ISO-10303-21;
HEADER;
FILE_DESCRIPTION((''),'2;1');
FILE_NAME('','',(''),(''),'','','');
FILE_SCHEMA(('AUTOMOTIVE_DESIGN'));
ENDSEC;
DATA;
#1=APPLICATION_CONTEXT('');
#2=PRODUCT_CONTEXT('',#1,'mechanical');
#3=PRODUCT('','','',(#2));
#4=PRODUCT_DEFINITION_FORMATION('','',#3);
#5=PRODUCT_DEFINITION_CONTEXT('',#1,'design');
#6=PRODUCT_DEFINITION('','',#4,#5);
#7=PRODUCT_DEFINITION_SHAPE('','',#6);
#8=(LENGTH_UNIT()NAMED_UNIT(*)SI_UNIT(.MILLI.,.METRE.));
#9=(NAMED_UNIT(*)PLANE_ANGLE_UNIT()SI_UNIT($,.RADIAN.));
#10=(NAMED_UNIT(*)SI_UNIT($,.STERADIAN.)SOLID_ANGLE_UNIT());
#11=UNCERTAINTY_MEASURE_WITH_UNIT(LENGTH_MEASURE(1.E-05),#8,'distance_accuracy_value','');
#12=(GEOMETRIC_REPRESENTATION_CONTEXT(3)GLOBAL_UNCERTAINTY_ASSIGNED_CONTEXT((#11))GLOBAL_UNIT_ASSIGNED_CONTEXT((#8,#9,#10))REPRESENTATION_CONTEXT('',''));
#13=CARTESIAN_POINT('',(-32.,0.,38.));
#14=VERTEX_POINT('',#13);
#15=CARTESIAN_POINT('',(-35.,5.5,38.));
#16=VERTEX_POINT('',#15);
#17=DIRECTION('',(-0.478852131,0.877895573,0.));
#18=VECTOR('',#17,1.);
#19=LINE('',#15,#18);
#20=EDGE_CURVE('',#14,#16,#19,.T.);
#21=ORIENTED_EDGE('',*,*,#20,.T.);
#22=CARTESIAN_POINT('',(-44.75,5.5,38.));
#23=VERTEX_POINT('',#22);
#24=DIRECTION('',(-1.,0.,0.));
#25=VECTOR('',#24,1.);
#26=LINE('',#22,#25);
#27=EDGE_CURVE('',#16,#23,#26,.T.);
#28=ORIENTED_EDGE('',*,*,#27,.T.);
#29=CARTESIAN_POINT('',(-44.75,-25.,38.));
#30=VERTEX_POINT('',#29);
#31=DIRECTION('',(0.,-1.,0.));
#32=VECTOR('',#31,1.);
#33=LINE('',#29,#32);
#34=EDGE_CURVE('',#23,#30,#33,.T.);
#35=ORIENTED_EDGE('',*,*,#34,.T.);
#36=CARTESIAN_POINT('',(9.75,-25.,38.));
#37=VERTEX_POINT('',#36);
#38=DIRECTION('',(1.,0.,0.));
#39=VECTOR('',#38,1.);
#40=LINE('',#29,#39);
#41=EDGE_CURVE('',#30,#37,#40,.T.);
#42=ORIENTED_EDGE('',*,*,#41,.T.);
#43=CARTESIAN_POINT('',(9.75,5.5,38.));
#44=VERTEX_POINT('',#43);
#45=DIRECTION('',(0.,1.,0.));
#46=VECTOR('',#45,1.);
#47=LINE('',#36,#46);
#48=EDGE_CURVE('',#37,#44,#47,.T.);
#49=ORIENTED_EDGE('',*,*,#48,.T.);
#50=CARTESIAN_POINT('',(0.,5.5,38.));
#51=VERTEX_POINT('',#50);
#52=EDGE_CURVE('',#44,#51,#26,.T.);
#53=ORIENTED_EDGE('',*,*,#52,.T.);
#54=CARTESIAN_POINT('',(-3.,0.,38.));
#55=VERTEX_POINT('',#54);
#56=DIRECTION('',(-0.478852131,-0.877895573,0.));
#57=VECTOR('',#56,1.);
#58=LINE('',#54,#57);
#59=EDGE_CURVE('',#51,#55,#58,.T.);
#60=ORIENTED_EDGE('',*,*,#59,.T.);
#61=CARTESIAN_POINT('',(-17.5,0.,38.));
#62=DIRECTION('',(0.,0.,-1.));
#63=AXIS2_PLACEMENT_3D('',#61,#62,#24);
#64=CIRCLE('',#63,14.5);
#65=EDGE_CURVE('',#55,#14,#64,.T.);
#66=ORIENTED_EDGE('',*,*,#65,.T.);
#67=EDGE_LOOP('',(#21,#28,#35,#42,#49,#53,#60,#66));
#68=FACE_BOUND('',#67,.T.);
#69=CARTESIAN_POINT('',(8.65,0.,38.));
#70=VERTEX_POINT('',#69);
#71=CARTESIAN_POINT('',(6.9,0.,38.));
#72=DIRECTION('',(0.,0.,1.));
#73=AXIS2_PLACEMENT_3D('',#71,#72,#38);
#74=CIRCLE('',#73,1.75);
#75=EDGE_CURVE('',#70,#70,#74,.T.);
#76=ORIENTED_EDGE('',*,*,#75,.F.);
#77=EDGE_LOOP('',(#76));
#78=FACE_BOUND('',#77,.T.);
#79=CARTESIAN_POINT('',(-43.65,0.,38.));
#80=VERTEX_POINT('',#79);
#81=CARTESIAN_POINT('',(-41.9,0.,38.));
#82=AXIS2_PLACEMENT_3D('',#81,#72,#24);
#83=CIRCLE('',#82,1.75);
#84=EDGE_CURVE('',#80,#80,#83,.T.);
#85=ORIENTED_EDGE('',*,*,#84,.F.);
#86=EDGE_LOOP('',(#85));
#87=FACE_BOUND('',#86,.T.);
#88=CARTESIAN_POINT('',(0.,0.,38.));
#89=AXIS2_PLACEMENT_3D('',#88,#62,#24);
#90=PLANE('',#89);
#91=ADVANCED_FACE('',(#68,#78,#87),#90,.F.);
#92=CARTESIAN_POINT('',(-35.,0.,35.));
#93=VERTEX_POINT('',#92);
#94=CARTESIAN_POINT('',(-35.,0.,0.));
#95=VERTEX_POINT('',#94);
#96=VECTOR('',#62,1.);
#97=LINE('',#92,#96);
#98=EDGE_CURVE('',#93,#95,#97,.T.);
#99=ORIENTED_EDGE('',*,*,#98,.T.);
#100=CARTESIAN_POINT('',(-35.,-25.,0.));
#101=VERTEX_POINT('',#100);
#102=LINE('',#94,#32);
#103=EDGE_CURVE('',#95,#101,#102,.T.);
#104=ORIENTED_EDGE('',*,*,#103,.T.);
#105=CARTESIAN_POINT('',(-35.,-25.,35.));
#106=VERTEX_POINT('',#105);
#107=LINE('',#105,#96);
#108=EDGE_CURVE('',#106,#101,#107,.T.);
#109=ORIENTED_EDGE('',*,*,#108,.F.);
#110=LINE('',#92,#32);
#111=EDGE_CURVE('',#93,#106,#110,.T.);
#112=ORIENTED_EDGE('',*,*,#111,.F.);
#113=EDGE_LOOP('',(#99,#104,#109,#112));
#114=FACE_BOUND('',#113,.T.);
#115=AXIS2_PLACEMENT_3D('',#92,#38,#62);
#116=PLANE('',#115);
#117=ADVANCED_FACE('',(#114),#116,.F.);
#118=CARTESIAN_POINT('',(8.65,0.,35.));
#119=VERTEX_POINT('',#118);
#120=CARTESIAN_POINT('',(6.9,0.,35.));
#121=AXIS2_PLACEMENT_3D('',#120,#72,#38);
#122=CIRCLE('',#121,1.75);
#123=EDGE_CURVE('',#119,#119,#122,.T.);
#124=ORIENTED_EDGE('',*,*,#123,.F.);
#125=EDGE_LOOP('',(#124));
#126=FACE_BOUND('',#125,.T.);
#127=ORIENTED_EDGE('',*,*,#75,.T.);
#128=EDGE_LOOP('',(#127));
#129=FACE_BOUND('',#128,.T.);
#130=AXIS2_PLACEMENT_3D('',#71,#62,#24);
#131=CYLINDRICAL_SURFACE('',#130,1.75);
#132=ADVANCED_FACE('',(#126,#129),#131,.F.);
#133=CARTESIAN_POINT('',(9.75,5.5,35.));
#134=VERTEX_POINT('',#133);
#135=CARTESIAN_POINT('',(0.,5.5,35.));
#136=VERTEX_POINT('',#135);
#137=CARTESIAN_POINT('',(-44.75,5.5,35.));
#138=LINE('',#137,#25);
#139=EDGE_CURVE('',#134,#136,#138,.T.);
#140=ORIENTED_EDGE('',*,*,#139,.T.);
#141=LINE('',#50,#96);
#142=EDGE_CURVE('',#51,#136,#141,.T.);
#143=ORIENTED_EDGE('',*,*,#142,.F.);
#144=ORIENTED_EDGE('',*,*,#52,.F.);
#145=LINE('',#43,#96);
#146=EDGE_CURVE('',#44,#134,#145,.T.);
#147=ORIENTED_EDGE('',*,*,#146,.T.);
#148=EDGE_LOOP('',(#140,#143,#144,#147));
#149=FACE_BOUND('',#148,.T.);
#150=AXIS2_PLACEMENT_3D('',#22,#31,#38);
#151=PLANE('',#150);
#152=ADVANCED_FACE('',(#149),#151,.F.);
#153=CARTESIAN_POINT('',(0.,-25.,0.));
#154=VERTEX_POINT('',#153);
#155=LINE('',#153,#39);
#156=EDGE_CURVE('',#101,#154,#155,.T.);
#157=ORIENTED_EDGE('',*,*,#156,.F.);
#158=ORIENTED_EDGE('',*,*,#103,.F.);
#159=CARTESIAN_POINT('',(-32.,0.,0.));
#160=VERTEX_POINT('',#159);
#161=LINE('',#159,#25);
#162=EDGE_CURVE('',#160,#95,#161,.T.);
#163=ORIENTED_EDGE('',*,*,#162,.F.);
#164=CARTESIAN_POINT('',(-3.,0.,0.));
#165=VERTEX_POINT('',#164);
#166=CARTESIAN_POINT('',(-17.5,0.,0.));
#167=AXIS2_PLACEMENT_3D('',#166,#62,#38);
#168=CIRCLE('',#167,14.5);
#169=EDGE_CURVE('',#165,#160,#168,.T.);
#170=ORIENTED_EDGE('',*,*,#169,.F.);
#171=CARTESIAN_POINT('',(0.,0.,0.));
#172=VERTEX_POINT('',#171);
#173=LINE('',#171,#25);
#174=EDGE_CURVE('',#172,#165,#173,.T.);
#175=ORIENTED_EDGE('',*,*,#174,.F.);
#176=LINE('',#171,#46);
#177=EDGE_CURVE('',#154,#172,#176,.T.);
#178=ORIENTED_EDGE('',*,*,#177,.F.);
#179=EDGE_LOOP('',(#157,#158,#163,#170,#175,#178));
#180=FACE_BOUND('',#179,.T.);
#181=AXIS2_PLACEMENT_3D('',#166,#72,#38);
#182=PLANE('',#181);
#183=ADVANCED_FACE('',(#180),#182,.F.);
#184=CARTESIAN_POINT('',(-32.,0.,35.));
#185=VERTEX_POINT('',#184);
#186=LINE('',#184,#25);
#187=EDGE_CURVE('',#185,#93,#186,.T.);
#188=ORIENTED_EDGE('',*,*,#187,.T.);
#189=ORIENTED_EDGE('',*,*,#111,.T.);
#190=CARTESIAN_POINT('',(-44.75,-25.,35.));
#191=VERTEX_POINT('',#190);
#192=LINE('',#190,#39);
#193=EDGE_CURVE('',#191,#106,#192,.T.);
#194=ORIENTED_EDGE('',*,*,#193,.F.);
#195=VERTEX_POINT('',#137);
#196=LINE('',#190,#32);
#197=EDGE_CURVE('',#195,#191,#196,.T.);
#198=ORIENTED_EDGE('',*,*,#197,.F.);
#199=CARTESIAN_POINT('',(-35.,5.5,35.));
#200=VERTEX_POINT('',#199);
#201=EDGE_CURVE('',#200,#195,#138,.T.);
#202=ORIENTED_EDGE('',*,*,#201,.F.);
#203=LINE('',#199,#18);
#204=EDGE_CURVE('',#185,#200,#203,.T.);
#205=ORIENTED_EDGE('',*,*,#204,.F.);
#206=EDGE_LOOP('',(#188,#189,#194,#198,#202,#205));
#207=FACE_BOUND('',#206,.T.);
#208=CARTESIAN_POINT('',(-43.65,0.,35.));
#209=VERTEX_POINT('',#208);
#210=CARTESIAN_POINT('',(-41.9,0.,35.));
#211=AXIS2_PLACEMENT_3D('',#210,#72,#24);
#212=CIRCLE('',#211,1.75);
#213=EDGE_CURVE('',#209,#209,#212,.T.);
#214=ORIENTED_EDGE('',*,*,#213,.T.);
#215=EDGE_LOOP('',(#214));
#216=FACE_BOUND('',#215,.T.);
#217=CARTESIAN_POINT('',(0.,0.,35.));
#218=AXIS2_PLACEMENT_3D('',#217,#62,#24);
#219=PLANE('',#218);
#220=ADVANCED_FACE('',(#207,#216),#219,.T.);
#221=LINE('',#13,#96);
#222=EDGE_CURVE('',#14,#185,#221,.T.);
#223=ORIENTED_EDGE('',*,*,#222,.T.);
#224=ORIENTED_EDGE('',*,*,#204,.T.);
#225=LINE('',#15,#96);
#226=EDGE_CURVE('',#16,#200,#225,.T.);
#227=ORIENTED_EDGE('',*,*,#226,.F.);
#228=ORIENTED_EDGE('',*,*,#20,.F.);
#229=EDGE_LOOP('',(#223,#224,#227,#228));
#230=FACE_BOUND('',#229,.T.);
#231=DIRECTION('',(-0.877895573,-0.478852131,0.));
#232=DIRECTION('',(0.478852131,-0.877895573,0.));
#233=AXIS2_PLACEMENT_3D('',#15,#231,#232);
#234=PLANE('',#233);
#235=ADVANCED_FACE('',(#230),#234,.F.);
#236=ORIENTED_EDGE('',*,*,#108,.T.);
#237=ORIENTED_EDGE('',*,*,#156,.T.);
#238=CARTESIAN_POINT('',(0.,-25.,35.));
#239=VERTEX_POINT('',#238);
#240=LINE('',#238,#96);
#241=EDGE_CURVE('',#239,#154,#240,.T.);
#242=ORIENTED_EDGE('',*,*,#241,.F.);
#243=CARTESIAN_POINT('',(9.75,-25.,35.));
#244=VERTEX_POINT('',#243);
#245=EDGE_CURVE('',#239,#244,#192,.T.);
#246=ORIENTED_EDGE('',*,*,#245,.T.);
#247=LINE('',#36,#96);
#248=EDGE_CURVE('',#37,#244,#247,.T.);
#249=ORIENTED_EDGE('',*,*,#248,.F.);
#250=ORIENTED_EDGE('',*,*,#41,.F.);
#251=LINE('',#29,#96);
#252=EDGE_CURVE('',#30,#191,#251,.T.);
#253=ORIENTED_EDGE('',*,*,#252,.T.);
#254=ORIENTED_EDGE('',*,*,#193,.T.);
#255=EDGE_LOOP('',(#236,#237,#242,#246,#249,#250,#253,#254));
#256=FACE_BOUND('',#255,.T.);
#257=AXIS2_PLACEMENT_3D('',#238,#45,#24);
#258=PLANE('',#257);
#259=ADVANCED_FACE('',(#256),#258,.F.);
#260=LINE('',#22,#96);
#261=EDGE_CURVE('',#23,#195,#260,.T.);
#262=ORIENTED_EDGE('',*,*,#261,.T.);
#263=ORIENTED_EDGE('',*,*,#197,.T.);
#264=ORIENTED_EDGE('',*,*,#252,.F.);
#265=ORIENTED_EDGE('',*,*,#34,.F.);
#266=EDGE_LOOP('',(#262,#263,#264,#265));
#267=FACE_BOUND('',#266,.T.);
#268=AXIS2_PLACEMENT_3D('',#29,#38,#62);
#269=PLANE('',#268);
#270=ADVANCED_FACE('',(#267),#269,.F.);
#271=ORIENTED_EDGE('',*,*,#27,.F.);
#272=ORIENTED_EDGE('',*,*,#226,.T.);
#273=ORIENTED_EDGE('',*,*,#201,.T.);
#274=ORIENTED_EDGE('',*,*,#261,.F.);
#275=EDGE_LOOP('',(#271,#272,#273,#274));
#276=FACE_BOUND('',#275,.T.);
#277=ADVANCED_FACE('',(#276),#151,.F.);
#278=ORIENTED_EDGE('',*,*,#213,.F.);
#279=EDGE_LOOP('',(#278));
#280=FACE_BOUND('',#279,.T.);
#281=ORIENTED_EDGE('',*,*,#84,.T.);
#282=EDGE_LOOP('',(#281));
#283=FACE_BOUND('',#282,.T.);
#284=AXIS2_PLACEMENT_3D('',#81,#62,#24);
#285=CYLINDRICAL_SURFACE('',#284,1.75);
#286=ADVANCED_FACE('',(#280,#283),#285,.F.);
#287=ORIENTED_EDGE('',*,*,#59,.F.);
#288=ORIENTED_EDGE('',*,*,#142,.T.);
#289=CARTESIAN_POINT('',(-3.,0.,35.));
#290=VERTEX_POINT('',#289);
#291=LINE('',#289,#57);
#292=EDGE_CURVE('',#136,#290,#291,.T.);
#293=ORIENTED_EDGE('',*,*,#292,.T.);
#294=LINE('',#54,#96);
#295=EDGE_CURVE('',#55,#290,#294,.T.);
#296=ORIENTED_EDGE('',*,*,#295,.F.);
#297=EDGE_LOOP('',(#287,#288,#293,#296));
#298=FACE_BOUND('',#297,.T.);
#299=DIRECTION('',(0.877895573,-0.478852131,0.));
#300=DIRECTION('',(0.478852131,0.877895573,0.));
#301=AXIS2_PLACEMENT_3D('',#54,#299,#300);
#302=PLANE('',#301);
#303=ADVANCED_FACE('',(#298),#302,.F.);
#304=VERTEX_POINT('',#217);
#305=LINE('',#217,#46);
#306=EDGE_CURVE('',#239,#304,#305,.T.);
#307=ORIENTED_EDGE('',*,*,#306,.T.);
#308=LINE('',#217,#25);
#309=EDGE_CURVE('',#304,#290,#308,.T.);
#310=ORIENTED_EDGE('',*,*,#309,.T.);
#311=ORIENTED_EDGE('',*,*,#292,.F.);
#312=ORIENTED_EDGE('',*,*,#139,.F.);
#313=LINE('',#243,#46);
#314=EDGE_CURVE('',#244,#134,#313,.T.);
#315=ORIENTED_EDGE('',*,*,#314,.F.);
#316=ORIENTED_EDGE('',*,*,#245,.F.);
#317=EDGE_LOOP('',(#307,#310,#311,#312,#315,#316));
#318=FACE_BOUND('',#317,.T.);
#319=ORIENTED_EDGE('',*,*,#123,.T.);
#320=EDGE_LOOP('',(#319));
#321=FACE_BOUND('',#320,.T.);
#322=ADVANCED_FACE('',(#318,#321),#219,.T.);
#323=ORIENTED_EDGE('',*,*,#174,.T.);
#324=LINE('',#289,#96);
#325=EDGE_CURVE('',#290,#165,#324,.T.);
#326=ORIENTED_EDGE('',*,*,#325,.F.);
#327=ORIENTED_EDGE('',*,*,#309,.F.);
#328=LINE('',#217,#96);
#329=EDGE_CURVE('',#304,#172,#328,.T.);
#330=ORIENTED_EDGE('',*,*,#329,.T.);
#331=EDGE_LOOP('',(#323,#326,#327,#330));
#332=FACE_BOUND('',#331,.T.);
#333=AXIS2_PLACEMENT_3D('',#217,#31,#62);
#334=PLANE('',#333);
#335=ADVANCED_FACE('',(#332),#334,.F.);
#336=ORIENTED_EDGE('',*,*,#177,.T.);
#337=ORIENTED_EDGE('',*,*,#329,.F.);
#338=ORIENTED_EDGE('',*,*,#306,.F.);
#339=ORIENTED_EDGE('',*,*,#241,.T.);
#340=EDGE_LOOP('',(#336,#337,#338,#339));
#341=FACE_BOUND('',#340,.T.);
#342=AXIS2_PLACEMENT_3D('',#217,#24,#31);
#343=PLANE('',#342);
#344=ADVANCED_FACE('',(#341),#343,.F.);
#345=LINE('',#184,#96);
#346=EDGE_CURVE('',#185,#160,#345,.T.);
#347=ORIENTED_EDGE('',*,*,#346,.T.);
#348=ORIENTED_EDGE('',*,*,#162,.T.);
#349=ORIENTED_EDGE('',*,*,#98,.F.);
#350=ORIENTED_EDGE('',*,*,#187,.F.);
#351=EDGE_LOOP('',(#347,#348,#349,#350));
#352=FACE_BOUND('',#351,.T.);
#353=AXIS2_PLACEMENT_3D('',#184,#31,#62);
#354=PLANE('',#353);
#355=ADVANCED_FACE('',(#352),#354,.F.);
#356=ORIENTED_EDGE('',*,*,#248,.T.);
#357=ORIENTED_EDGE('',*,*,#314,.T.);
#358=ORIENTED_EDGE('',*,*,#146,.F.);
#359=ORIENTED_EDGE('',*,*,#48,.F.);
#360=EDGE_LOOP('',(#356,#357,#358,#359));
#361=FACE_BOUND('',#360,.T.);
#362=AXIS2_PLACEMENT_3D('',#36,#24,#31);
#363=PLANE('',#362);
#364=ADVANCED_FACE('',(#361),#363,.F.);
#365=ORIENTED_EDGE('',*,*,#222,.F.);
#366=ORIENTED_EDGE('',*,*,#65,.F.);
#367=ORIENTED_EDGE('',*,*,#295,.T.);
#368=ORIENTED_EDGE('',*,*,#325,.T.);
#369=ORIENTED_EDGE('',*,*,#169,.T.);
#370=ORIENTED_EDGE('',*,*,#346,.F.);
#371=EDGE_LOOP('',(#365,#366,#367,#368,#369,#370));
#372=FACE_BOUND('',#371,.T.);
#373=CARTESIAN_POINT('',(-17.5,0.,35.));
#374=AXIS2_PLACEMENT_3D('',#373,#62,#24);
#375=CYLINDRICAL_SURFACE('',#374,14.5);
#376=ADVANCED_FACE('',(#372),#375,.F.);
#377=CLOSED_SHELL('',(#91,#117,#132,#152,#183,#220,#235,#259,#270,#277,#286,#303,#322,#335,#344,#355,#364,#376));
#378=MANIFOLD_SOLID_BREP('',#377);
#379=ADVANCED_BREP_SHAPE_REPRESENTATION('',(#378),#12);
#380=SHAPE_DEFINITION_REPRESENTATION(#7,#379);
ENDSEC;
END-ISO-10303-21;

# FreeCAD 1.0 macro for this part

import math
import FreeCAD as App
import Part
import Sketcher
from FreeCAD import Vector

doc = App.newDocument("Part")
body = doc.addObject("PartDesign::Body", "Body")

# Sketch on XY plane
sketch1 = doc.addObject("Sketcher::SketchObject", "Sketch")
body.addObject(sketch1)
sketch1.AttachmentSupport = (doc.XY_Plane, [""])
sketch1.MapMode = "FlatFace"
sketch1.addGeometry([
    Part.LineSegment(Vector(-32, 0, 0), Vector(-35, 0, 0)),  # 0
    Part.LineSegment(Vector(-35, 0, 0), Vector(-35, -25, 0)),  # 1
    Part.LineSegment(Vector(-35, -25, 0), Vector(0, -25, 0)),  # 2
    Part.LineSegment(Vector(0, -25, 0), Vector(0, 0, 0)),  # 3
    Part.LineSegment(Vector(0, 0, 0), Vector(-3, 0, 0)),  # 4
    Part.ArcOfCircle(Part.Circle(Vector(-17.5, 0, 0), Vector(0, 0, 1), 14.5), math.radians(180), math.radians(360)),  # 5
], False)
sketch1.addConstraint([
    Sketcher.Constraint("Coincident", 0, 2, 1, 1),
    Sketcher.Constraint("Coincident", 1, 2, 2, 1),
    Sketcher.Constraint("Coincident", 2, 2, 3, 1),
    Sketcher.Constraint("Coincident", 3, 2, 4, 1),
    Sketcher.Constraint("Coincident", 4, 2, 5, 2),
    Sketcher.Constraint("Coincident", 5, 1, 0, 1),
    Sketcher.Constraint("Horizontal", 0),
    Sketcher.Constraint("Vertical", 1),
    Sketcher.Constraint("Horizontal", 2),
    Sketcher.Constraint("Vertical", 3),
    Sketcher.Constraint("Horizontal", 4),
    Sketcher.Constraint("Coincident", 3, 2, -1, 1),
    Sketcher.Constraint("PointOnObject", 5, 3, -1),
    Sketcher.Constraint("PointOnObject", 0, 2, -1),
    Sketcher.Constraint("Equal", 0, 4),
    Sketcher.Constraint("Radius", 5, 14.5),
    Sketcher.Constraint("DistanceX", 0, 2, 0, 1, 3.0),
    Sketcher.Constraint("DistanceY", 1, 2, 1, 1, 25.0),
])
pad1 = doc.addObject("PartDesign::Pad", "Pad")
body.addObject(pad1)
pad1.Profile = sketch1
pad1.Length = 35

# Sketch on XY plane
sketch2 = doc.addObject("Sketcher::SketchObject", "Sketch001")
body.addObject(sketch2)
sketch2.AttachmentSupport = (doc.XY_Plane, [""])
sketch2.MapMode = "FlatFace"
sketch2.AttachmentOffset = App.Placement(Vector(0, 0, 35), App.Rotation())
sketch2.addGeometry([
    Part.LineSegment(Vector(-44.8, 5.5, 0), Vector(-44.8, -25, 0)),  # 0
    Part.LineSegment(Vector(-44.8, -25, 0), Vector(9.8, -25, 0)),  # 1
    Part.LineSegment(Vector(9.8, -25, 0), Vector(9.8, 5.5, 0)),  # 2
    Part.LineSegment(Vector(9.8, 5.5, 0), Vector(-44.8, 5.5, 0)),  # 3
    Part.Circle(Vector(-41.9, 0, 0), Vector(0, 0, 1), 1.8),  # 4
    Part.Circle(Vector(6.9, 0, 0), Vector(0, 0, 1), 1.8),  # 5
], False)
sketch2.addConstraint([
    Sketcher.Constraint("Coincident", 0, 2, 1, 1),
    Sketcher.Constraint("Coincident", 1, 2, 2, 1),
    Sketcher.Constraint("Coincident", 2, 2, 3, 1),
    Sketcher.Constraint("Coincident", 3, 2, 0, 1),
    Sketcher.Constraint("Vertical", 0),
    Sketcher.Constraint("Horizontal", 1),
    Sketcher.Constraint("Vertical", 2),
    Sketcher.Constraint("Horizontal", 3),
    Sketcher.Constraint("Equal", 4, 5),
    Sketcher.Constraint("PointOnObject", 4, 3, -1),
    Sketcher.Constraint("PointOnObject", 5, 3, -1),
    Sketcher.Constraint("Diameter", 4, 3.5),
    Sketcher.Constraint("DistanceX", 1, 1, 1, 2, 54.5),
    Sketcher.Constraint("DistanceY", 0, 2, 0, 1, 30.5),
    Sketcher.Constraint("DistanceY", 0, 2, -1, 1, 25.0),
    Sketcher.Constraint("DistanceX", 4, 3, -1, 1, 41.9),
    Sketcher.Constraint("DistanceX", -1, 1, 5, 3, 6.9),
    Sketcher.Constraint("DistanceX", 0, 2, -1, 1, 44.75),
])
pad2 = doc.addObject("PartDesign::Pad", "Pad001")
body.addObject(pad2)
pad2.Profile = sketch2
pad2.Length = 3

# Sketch on XY plane
sketch3 = doc.addObject("Sketcher::SketchObject", "Sketch002")
body.addObject(sketch3)
sketch3.AttachmentSupport = (doc.XY_Plane, [""])
sketch3.MapMode = "FlatFace"
sketch3.AttachmentOffset = App.Placement(Vector(0, 0, 35), App.Rotation())
sketch3.addGeometry([
    Part.LineSegment(Vector(0, 6, 0), Vector(-3, 0, 0)),
    Part.ArcOfCircle(Part.Circle(Vector(-18, 0, 0), Vector(0, 0, 1), 14), math.radians(180), math.radians(360)),
    Part.LineSegment(Vector(-32, 0, 0), Vector(-35, 6, 0)),
    Part.LineSegment(Vector(-35, 6, 0), Vector(0, 6, 0)),
], False)
sketch3.addConstraint([
    Sketcher.Constraint("Coincident", 0, 2, 1, 2),
    Sketcher.Constraint("Coincident", 1, 1, 2, 1),
    Sketcher.Constraint("Coincident", 2, 2, 3, 1),
    Sketcher.Constraint("Coincident", 3, 2, 0, 1),
    Sketcher.Constraint("Horizontal", 3),
    Sketcher.Constraint("PointOnObject", 1, 3, -1),
    Sketcher.Constraint("PointOnObject", 0, 2, -1),
    Sketcher.Constraint("PointOnObject", 1, 1, -1),
    Sketcher.Constraint("PointOnObject", 3, 2, -2),
    Sketcher.Constraint("Equal", 0, 2),
    Sketcher.Constraint("Radius", 1, 14.5),
    Sketcher.Constraint("DistanceX", 3, 1, 3, 2, 35.0),
    Sketcher.Constraint("DistanceY", -1, 1, 2, 2, 5.5),
])
pocket1 = doc.addObject("PartDesign::Pocket", "Pocket")
body.addObject(pocket1)
pocket1.Profile = sketch3
pocket1.Type = "ThroughAll"
pocket1.Reversed = True

doc.recompute()
